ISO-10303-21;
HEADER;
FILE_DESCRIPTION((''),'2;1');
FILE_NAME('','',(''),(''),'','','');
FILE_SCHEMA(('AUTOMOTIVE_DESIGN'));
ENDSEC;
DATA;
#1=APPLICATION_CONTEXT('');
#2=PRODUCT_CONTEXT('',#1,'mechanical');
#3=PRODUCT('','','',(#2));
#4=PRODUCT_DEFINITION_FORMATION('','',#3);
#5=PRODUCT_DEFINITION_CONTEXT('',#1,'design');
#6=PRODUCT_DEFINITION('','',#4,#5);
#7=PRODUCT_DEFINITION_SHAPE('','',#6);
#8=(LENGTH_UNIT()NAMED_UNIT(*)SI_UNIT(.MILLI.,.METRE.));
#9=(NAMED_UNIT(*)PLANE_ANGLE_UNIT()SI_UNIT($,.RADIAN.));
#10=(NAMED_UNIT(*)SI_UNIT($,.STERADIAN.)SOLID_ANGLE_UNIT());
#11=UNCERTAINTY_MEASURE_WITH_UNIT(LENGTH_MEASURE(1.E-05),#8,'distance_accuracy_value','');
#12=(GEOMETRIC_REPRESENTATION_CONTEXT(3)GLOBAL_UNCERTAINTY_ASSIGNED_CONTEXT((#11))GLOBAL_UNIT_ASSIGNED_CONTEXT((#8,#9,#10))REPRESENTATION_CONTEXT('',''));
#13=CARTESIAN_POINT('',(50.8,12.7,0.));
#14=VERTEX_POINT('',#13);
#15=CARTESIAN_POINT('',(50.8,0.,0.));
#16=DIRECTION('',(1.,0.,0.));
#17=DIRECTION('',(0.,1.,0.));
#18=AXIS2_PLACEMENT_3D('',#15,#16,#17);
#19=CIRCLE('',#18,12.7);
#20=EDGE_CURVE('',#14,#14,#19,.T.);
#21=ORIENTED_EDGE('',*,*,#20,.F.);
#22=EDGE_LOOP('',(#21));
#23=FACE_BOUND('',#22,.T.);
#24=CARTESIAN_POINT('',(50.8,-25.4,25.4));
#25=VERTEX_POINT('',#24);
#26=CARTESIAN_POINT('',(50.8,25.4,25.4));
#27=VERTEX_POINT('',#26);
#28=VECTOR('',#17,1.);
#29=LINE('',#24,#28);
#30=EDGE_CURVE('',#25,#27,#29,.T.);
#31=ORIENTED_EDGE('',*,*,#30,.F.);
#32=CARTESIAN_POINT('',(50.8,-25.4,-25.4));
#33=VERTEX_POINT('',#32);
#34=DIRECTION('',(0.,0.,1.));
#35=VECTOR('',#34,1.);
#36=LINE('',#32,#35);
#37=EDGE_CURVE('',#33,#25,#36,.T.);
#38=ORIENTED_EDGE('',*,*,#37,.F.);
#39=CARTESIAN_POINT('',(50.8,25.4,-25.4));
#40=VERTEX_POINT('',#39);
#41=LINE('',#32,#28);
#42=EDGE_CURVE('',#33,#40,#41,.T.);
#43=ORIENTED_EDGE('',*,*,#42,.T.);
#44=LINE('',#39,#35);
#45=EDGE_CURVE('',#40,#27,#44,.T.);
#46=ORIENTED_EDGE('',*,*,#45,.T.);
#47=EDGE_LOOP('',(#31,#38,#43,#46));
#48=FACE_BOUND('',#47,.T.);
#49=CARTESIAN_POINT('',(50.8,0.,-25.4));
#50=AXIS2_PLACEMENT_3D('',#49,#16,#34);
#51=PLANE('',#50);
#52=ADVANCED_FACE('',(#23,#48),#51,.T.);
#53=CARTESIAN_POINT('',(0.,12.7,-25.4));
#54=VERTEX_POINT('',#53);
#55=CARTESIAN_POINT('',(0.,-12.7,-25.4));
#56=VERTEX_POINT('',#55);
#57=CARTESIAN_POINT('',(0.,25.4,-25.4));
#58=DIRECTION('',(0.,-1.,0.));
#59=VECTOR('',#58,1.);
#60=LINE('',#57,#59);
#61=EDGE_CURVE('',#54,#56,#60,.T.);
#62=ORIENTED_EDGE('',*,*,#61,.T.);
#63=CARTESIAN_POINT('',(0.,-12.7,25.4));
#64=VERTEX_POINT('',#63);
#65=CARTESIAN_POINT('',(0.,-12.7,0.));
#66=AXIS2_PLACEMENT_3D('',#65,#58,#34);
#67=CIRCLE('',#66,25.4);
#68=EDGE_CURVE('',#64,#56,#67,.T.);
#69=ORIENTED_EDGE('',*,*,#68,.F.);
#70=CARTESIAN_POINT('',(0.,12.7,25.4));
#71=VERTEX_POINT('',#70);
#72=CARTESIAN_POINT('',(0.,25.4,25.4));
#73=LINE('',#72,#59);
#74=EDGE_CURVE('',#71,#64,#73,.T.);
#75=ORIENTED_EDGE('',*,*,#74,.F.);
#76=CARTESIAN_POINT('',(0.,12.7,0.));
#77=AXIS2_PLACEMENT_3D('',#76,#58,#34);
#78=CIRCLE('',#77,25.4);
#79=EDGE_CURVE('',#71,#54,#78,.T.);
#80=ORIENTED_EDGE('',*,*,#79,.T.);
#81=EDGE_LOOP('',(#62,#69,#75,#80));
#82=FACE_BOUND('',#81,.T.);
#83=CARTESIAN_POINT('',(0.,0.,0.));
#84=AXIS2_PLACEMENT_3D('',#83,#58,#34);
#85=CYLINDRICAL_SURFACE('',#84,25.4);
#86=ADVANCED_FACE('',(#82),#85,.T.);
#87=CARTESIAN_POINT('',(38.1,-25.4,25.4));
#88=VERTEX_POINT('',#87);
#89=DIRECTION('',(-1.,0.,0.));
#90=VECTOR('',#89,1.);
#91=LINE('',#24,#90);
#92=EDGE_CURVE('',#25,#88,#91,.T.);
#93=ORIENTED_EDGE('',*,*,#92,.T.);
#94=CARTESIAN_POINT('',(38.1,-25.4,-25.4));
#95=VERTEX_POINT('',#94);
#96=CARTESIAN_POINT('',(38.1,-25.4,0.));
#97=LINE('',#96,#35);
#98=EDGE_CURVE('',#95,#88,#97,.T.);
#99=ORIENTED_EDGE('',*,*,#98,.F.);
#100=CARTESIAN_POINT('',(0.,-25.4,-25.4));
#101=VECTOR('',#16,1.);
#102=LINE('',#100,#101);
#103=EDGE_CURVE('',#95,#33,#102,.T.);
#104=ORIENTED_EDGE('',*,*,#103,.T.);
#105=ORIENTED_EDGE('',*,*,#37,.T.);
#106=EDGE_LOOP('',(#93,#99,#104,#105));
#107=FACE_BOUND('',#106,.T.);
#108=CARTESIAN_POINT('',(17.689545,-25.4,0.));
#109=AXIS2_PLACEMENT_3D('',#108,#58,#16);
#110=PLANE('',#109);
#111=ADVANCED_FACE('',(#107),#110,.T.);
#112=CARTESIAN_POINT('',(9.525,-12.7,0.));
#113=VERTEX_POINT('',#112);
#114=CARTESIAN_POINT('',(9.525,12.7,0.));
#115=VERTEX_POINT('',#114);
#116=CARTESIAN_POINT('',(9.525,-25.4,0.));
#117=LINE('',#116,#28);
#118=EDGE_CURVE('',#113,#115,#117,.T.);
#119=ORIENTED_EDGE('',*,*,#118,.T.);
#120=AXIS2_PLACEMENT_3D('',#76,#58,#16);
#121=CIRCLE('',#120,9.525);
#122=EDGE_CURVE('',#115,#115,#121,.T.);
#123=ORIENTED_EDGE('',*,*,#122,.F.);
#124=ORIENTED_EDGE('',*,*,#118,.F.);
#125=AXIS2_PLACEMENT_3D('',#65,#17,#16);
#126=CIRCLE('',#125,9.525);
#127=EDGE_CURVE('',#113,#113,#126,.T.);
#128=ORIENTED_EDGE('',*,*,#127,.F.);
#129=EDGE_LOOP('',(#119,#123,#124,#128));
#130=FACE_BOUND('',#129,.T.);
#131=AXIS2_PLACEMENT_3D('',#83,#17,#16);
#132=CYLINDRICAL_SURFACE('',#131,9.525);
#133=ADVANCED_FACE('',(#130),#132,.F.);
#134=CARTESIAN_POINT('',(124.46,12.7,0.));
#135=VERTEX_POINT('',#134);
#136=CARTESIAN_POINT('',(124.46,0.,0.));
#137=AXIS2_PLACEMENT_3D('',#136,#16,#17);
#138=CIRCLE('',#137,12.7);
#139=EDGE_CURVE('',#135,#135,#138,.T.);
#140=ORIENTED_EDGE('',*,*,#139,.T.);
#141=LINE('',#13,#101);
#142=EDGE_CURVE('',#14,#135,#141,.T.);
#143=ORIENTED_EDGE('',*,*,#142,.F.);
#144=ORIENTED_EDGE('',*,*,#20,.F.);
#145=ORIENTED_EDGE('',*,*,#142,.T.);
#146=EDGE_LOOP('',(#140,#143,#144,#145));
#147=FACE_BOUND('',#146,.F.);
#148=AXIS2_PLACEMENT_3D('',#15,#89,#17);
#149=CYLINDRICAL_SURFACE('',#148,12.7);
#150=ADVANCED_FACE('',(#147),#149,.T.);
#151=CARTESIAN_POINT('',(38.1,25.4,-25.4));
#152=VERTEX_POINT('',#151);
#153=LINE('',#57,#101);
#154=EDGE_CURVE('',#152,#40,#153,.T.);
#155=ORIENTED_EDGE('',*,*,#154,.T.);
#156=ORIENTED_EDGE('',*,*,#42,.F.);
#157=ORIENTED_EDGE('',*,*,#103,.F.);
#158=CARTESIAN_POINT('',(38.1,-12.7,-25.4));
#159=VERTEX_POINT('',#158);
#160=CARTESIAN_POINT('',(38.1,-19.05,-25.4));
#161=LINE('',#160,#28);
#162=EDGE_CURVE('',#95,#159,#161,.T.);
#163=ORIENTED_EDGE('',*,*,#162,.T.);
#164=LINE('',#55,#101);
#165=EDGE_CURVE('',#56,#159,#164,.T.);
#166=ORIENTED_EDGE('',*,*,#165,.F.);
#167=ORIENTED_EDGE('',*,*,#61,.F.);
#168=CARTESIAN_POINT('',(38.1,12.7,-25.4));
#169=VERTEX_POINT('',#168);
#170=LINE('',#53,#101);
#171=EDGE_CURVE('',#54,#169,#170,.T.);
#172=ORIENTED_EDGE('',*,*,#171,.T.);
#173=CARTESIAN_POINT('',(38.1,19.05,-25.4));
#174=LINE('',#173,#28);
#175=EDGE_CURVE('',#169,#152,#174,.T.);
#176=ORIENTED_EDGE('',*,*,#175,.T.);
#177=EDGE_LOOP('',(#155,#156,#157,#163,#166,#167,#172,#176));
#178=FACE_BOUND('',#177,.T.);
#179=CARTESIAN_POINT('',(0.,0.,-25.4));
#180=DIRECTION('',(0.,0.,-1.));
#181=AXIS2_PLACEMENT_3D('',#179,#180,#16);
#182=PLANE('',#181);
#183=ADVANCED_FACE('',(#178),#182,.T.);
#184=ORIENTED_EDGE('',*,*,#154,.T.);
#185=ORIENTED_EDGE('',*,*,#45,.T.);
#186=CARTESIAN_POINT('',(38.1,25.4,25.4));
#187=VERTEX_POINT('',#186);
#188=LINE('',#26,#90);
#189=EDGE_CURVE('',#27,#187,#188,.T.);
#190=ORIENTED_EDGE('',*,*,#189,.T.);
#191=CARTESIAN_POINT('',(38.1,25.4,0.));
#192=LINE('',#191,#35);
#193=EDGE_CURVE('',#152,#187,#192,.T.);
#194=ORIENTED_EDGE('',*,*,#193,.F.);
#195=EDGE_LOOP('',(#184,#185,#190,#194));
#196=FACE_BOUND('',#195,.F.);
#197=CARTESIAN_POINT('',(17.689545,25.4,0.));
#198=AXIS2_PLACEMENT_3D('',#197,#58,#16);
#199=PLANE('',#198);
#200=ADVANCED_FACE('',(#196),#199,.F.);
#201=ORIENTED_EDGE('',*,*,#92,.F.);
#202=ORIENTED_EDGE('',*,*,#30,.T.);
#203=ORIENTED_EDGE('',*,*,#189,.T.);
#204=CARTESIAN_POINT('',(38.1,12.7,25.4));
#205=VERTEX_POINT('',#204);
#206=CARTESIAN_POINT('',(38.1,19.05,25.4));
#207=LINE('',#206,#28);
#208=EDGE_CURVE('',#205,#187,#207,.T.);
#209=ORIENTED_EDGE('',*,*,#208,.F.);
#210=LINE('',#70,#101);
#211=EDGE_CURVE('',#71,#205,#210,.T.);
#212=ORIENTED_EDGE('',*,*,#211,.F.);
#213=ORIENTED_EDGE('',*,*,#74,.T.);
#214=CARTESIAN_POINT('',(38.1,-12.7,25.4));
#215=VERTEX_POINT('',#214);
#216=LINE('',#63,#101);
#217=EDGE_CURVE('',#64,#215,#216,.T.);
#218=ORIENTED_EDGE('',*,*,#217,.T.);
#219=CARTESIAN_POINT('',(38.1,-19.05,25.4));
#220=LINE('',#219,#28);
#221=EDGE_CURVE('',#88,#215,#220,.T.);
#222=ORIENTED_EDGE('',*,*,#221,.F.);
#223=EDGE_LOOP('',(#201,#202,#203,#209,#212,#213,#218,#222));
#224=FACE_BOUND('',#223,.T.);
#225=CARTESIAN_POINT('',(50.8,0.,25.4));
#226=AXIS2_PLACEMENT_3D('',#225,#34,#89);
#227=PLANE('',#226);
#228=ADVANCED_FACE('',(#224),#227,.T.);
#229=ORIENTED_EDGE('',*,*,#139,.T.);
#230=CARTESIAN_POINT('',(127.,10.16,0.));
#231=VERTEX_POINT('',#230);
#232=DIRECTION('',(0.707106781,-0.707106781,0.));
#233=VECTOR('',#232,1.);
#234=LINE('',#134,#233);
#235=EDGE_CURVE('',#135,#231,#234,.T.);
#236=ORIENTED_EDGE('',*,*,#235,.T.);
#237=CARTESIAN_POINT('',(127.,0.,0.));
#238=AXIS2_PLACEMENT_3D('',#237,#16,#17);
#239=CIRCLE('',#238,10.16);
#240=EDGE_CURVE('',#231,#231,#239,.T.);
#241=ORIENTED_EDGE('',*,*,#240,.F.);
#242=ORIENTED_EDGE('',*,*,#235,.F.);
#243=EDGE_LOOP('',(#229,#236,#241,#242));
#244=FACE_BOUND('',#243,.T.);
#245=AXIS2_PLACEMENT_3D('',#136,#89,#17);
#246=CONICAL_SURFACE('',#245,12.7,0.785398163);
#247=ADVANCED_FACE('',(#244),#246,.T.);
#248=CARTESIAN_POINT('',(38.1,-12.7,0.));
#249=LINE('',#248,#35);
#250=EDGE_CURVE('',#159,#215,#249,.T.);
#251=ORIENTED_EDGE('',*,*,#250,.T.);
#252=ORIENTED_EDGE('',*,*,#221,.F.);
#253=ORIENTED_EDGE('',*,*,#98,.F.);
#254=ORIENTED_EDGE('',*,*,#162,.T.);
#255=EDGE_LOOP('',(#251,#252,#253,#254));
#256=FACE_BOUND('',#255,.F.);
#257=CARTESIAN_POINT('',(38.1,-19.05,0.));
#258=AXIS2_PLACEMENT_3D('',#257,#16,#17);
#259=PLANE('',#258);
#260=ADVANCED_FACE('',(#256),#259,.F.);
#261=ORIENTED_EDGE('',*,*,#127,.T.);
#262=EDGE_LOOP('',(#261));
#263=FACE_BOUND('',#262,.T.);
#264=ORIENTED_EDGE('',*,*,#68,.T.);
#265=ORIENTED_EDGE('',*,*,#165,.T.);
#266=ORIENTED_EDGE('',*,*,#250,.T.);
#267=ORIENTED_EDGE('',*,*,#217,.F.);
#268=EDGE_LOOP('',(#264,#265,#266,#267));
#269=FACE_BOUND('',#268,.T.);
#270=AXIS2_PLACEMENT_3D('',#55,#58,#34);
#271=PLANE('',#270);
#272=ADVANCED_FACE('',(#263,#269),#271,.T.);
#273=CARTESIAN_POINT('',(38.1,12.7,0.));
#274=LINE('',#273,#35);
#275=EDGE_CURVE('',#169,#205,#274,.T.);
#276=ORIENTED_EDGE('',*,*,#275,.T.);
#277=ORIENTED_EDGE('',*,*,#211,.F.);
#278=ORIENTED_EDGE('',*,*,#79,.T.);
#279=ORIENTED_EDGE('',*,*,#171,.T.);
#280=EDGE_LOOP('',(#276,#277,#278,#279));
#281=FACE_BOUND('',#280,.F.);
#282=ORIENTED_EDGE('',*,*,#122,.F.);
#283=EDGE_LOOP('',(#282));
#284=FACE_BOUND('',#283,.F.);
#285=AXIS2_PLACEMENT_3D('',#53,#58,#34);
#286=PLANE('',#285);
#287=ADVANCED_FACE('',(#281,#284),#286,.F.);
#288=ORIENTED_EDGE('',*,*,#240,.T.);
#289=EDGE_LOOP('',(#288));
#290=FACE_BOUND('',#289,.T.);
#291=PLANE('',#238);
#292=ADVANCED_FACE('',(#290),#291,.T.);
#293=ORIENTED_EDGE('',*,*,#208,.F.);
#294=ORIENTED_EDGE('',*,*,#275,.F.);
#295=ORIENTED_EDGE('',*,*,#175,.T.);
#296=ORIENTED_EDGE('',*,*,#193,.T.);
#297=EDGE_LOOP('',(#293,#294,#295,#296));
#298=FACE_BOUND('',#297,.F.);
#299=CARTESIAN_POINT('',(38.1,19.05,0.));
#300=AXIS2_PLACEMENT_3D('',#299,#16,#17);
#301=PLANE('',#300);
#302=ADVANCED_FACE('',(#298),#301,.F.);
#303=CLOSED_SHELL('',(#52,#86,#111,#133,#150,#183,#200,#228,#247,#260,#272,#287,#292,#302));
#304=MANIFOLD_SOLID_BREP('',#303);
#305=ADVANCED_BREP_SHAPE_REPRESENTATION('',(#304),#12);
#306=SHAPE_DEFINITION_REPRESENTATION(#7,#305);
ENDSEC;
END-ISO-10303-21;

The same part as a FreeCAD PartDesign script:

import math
import FreeCAD as App
import Part
import Sketcher
Q = App.Units.Quantity


def edges_at(feature, points):
    """Names of the edges that pass closest to the given points."""
    edges = feature.Shape.Edges
    near = lambda p: min(range(len(edges)), key=lambda i: edges[i].distToShape(Part.Vertex(*p))[0])
    return sorted({f"Edge{near(p) + 1}" for p in points})

doc = App.newDocument("Part")
params = doc.addObject("Spreadsheet::Sheet", "Params")
for row, (alias, value) in enumerate([
    ("sketch1_radius", "1 in"),
    ("sketch1_diameter", "0.75 in"),
    ("pad1_length", "2 in"),
    ("sketch2_height", "2 in"),
    ("sketch2_width", "0.5 in"),
    ("pocket1_length", "1.5 in"),
    ("sketch3_height", "2 in"),
    ("sketch3_width", "0.5 in"),
    ("pocket2_length", "1 in"),
    ("sketch4_diameter", "1 in"),
    ("pad2_length", "3 in"),
    ("chamfer_size", "0.1 in"),
    ("chamfer_size2", "0.1 in"),
], start=1):
    params.set(f"A{row}", alias)
    params.set(f"B{row}", "=" + value)
    params.setAlias(f"B{row}", alias)

body = doc.addObject("PartDesign::Body", "Body")

# Sketch on XZ plane
sketch1 = doc.addObject("Sketcher::SketchObject", "Sketch")
body.addObject(sketch1)
sketch1.AttachmentSupport = (doc.XZ_Plane, [""])
sketch1.MapMode = "FlatFace"
sketch1.addGeometry([
    Part.LineSegment(App.Vector(50.8, 25.4, 0), App.Vector(0, 25.4, 0)),  # 0
    Part.ArcOfCircle(Part.Circle(App.Vector(0, 0, 0), App.Vector(0, 0, 1), 25.4), math.radians(90), math.radians(270)),  # 1
    Part.LineSegment(App.Vector(0, -25.4, 0), App.Vector(50.8, -25.4, 0)),  # 2
    Part.LineSegment(App.Vector(50.8, -25.4, 0), App.Vector(50.8, 25.4, 0)),  # 3
    Part.Circle(App.Vector(0, 0, 0), App.Vector(0, 0, 1), 9.525),  # 4
], False)
sketch1.addConstraint([
    Sketcher.Constraint("Tangent", 0, 2, 1, 1),
    Sketcher.Constraint("Tangent", 1, 2, 2, 1),
    Sketcher.Constraint("Coincident", 2, 2, 3, 1),
    Sketcher.Constraint("Coincident", 3, 2, 0, 1),
    Sketcher.Constraint("Horizontal", 0),
    Sketcher.Constraint("Horizontal", 2),
    Sketcher.Constraint("Vertical", 3),
    Sketcher.Constraint("Coincident", 1, 3, -1, 1),
    Sketcher.Constraint("Coincident", 4, 3, -1, 1),
    Sketcher.Constraint("Equal", 2, 3),
    Sketcher.Constraint("Radius", 1, Q("1 in")),
    Sketcher.Constraint("Diameter", 4, Q("0.75 in")),
])
sketch1.setExpression("Constraints[10]", "Params.sketch1_radius")
sketch1.setExpression("Constraints[11]", "Params.sketch1_diameter")
pad1 = doc.addObject("PartDesign::Pad", "Pad")
body.addObject(pad1)
pad1.Profile = sketch1
pad1.setExpression("Length", "Params.pad1_length")
pad1.Midplane = True

# Sketch on YZ plane
sketch2 = doc.addObject("Sketcher::SketchObject", "Sketch001")
body.addObject(sketch2)
sketch2.AttachmentSupport = (doc.YZ_Plane, [""])
sketch2.MapMode = "FlatFace"
sketch2.addGeometry([
    Part.LineSegment(App.Vector(12.7, 25.4, 0), App.Vector(12.7, -25.4, 0)),  # 0
    Part.LineSegment(App.Vector(12.7, -25.4, 0), App.Vector(25.4, -25.4, 0)),  # 1
    Part.LineSegment(App.Vector(25.4, -25.4, 0), App.Vector(25.4, 25.4, 0)),  # 2
    Part.LineSegment(App.Vector(25.4, 25.4, 0), App.Vector(12.7, 25.4, 0)),  # 3
    Part.LineSegment(App.Vector(-25.4, 25.4, 0), App.Vector(-25.4, -25.4, 0)),  # 4
    Part.LineSegment(App.Vector(-25.4, -25.4, 0), App.Vector(-12.7, -25.4, 0)),  # 5
    Part.LineSegment(App.Vector(-12.7, -25.4, 0), App.Vector(-12.7, 25.4, 0)),  # 6
    Part.LineSegment(App.Vector(-12.7, 25.4, 0), App.Vector(-25.4, 25.4, 0)),  # 7
], False)
sketch2.addConstraint([
    Sketcher.Constraint("Coincident", 0, 2, 1, 1),
    Sketcher.Constraint("Coincident", 1, 2, 2, 1),
    Sketcher.Constraint("Coincident", 2, 2, 3, 1),
    Sketcher.Constraint("Coincident", 3, 2, 0, 1),
    Sketcher.Constraint("Coincident", 4, 2, 5, 1),
    Sketcher.Constraint("Coincident", 5, 2, 6, 1),
    Sketcher.Constraint("Coincident", 6, 2, 7, 1),
    Sketcher.Constraint("Coincident", 7, 2, 4, 1),
    Sketcher.Constraint("Vertical", 0),
    Sketcher.Constraint("Horizontal", 1),
    Sketcher.Constraint("Vertical", 2),
    Sketcher.Constraint("Horizontal", 3),
    Sketcher.Constraint("Vertical", 4),
    Sketcher.Constraint("Horizontal", 5),
    Sketcher.Constraint("Vertical", 6),
    Sketcher.Constraint("Horizontal", 7),
    Sketcher.Constraint("Symmetric", 2, 2, 4, 2, -1, 1),
    Sketcher.Constraint("Symmetric", 0, 2, 6, 2, -1, 1),
    Sketcher.Constraint("Horizontal", 1, 2, 4, 2),
    Sketcher.Constraint("DistanceY", 0, 2, 0, 1, Q("2 in")),
    Sketcher.Constraint("DistanceX", 1, 1, 1, 2, Q("0.5 in")),
    Sketcher.Constraint("DistanceX", -1, 1, 1, 2, Q("1 in")),
])
sketch2.setExpression("Constraints[19]", "Params.sketch2_height")
sketch2.setExpression("Constraints[20]", "Params.sketch2_width")
pocket1 = doc.addObject("PartDesign::Pocket", "Pocket")
body.addObject(pocket1)
pocket1.Profile = sketch2
pocket1.setExpression("Length", "Params.pocket1_length")
pocket1.Reversed = True

# Sketch on YZ plane
sketch3 = doc.addObject("Sketcher::SketchObject", "Sketch002")
body.addObject(sketch3)
sketch3.AttachmentSupport = (doc.YZ_Plane, [""])
sketch3.MapMode = "FlatFace"
sketch3.addGeometry([
    Part.LineSegment(App.Vector(12.7, 25.4, 0), App.Vector(12.7, -25.4, 0)),  # 0
    Part.LineSegment(App.Vector(12.7, -25.4, 0), App.Vector(25.4, -25.4, 0)),  # 1
    Part.LineSegment(App.Vector(25.4, -25.4, 0), App.Vector(25.4, 25.4, 0)),  # 2
    Part.LineSegment(App.Vector(25.4, 25.4, 0), App.Vector(12.7, 25.4, 0)),  # 3
    Part.LineSegment(App.Vector(-25.4, 25.4, 0), App.Vector(-25.4, -25.4, 0)),  # 4
    Part.LineSegment(App.Vector(-25.4, -25.4, 0), App.Vector(-12.7, -25.4, 0)),  # 5
    Part.LineSegment(App.Vector(-12.7, -25.4, 0), App.Vector(-12.7, 25.4, 0)),  # 6
    Part.LineSegment(App.Vector(-12.7, 25.4, 0), App.Vector(-25.4, 25.4, 0)),  # 7
], False)
sketch3.addConstraint([
    Sketcher.Constraint("Coincident", 0, 2, 1, 1),
    Sketcher.Constraint("Coincident", 1, 2, 2, 1),
    Sketcher.Constraint("Coincident", 2, 2, 3, 1),
    Sketcher.Constraint("Coincident", 3, 2, 0, 1),
    Sketcher.Constraint("Coincident", 4, 2, 5, 1),
    Sketcher.Constraint("Coincident", 5, 2, 6, 1),
    Sketcher.Constraint("Coincident", 6, 2, 7, 1),
    Sketcher.Constraint("Coincident", 7, 2, 4, 1),
    Sketcher.Constraint("Vertical", 0),
    Sketcher.Constraint("Horizontal", 1),
    Sketcher.Constraint("Vertical", 2),
    Sketcher.Constraint("Horizontal", 3),
    Sketcher.Constraint("Vertical", 4),
    Sketcher.Constraint("Horizontal", 5),
    Sketcher.Constraint("Vertical", 6),
    Sketcher.Constraint("Horizontal", 7),
    Sketcher.Constraint("Symmetric", 2, 2, 4, 2, -1, 1),
    Sketcher.Constraint("Symmetric", 0, 2, 6, 2, -1, 1),
    Sketcher.Constraint("Horizontal", 1, 2, 4, 2),
    Sketcher.Constraint("DistanceY", 0, 2, 0, 1, Q("2 in")),
    Sketcher.Constraint("DistanceX", 1, 1, 1, 2, Q("0.5 in")),
    Sketcher.Constraint("DistanceX", -1, 1, 1, 2, Q("1 in")),
])
sketch3.setExpression("Constraints[19]", "Params.sketch3_height")
sketch3.setExpression("Constraints[20]", "Params.sketch3_width")
pocket2 = doc.addObject("PartDesign::Pocket", "Pocket001")
body.addObject(pocket2)
pocket2.Profile = sketch3
pocket2.setExpression("Length", "Params.pocket2_length")

# Sketch on YZ plane
sketch4 = doc.addObject("Sketcher::SketchObject", "Sketch003")
body.addObject(sketch4)
sketch4.AttachmentSupport = (doc.YZ_Plane, [""])
sketch4.MapMode = "FlatFace"
sketch4.AttachmentOffset = App.Placement(App.Vector(0, 0, 2 * 25.4), App.Rotation())
sketch4.addGeometry(Part.Circle(App.Vector(0, 0, 0), App.Vector(0, 0, 1), 12.7), False)
sketch4.addConstraint([
    Sketcher.Constraint("Coincident", 0, 3, -1, 1),
    Sketcher.Constraint("Diameter", 0, Q("1 in")),
])
sketch4.setExpression("Constraints[1]", "Params.sketch4_diameter")
pad2 = doc.addObject("PartDesign::Pad", "Pad001")
body.addObject(pad2)
pad2.Profile = sketch4
pad2.setExpression("Length", "Params.pad2_length")
doc.recompute()

chamfer = doc.addObject("PartDesign::Chamfer", "Chamfer")
body.addObject(chamfer)
chamfer.Base = (pad2, edges_at(pad2, [(127, -12.7, 0)]))
chamfer.ChamferType = "Two distances"
chamfer.setExpression("Size", "Params.chamfer_size")
chamfer.setExpression("Size2", "Params.chamfer_size2")

doc.recompute()
